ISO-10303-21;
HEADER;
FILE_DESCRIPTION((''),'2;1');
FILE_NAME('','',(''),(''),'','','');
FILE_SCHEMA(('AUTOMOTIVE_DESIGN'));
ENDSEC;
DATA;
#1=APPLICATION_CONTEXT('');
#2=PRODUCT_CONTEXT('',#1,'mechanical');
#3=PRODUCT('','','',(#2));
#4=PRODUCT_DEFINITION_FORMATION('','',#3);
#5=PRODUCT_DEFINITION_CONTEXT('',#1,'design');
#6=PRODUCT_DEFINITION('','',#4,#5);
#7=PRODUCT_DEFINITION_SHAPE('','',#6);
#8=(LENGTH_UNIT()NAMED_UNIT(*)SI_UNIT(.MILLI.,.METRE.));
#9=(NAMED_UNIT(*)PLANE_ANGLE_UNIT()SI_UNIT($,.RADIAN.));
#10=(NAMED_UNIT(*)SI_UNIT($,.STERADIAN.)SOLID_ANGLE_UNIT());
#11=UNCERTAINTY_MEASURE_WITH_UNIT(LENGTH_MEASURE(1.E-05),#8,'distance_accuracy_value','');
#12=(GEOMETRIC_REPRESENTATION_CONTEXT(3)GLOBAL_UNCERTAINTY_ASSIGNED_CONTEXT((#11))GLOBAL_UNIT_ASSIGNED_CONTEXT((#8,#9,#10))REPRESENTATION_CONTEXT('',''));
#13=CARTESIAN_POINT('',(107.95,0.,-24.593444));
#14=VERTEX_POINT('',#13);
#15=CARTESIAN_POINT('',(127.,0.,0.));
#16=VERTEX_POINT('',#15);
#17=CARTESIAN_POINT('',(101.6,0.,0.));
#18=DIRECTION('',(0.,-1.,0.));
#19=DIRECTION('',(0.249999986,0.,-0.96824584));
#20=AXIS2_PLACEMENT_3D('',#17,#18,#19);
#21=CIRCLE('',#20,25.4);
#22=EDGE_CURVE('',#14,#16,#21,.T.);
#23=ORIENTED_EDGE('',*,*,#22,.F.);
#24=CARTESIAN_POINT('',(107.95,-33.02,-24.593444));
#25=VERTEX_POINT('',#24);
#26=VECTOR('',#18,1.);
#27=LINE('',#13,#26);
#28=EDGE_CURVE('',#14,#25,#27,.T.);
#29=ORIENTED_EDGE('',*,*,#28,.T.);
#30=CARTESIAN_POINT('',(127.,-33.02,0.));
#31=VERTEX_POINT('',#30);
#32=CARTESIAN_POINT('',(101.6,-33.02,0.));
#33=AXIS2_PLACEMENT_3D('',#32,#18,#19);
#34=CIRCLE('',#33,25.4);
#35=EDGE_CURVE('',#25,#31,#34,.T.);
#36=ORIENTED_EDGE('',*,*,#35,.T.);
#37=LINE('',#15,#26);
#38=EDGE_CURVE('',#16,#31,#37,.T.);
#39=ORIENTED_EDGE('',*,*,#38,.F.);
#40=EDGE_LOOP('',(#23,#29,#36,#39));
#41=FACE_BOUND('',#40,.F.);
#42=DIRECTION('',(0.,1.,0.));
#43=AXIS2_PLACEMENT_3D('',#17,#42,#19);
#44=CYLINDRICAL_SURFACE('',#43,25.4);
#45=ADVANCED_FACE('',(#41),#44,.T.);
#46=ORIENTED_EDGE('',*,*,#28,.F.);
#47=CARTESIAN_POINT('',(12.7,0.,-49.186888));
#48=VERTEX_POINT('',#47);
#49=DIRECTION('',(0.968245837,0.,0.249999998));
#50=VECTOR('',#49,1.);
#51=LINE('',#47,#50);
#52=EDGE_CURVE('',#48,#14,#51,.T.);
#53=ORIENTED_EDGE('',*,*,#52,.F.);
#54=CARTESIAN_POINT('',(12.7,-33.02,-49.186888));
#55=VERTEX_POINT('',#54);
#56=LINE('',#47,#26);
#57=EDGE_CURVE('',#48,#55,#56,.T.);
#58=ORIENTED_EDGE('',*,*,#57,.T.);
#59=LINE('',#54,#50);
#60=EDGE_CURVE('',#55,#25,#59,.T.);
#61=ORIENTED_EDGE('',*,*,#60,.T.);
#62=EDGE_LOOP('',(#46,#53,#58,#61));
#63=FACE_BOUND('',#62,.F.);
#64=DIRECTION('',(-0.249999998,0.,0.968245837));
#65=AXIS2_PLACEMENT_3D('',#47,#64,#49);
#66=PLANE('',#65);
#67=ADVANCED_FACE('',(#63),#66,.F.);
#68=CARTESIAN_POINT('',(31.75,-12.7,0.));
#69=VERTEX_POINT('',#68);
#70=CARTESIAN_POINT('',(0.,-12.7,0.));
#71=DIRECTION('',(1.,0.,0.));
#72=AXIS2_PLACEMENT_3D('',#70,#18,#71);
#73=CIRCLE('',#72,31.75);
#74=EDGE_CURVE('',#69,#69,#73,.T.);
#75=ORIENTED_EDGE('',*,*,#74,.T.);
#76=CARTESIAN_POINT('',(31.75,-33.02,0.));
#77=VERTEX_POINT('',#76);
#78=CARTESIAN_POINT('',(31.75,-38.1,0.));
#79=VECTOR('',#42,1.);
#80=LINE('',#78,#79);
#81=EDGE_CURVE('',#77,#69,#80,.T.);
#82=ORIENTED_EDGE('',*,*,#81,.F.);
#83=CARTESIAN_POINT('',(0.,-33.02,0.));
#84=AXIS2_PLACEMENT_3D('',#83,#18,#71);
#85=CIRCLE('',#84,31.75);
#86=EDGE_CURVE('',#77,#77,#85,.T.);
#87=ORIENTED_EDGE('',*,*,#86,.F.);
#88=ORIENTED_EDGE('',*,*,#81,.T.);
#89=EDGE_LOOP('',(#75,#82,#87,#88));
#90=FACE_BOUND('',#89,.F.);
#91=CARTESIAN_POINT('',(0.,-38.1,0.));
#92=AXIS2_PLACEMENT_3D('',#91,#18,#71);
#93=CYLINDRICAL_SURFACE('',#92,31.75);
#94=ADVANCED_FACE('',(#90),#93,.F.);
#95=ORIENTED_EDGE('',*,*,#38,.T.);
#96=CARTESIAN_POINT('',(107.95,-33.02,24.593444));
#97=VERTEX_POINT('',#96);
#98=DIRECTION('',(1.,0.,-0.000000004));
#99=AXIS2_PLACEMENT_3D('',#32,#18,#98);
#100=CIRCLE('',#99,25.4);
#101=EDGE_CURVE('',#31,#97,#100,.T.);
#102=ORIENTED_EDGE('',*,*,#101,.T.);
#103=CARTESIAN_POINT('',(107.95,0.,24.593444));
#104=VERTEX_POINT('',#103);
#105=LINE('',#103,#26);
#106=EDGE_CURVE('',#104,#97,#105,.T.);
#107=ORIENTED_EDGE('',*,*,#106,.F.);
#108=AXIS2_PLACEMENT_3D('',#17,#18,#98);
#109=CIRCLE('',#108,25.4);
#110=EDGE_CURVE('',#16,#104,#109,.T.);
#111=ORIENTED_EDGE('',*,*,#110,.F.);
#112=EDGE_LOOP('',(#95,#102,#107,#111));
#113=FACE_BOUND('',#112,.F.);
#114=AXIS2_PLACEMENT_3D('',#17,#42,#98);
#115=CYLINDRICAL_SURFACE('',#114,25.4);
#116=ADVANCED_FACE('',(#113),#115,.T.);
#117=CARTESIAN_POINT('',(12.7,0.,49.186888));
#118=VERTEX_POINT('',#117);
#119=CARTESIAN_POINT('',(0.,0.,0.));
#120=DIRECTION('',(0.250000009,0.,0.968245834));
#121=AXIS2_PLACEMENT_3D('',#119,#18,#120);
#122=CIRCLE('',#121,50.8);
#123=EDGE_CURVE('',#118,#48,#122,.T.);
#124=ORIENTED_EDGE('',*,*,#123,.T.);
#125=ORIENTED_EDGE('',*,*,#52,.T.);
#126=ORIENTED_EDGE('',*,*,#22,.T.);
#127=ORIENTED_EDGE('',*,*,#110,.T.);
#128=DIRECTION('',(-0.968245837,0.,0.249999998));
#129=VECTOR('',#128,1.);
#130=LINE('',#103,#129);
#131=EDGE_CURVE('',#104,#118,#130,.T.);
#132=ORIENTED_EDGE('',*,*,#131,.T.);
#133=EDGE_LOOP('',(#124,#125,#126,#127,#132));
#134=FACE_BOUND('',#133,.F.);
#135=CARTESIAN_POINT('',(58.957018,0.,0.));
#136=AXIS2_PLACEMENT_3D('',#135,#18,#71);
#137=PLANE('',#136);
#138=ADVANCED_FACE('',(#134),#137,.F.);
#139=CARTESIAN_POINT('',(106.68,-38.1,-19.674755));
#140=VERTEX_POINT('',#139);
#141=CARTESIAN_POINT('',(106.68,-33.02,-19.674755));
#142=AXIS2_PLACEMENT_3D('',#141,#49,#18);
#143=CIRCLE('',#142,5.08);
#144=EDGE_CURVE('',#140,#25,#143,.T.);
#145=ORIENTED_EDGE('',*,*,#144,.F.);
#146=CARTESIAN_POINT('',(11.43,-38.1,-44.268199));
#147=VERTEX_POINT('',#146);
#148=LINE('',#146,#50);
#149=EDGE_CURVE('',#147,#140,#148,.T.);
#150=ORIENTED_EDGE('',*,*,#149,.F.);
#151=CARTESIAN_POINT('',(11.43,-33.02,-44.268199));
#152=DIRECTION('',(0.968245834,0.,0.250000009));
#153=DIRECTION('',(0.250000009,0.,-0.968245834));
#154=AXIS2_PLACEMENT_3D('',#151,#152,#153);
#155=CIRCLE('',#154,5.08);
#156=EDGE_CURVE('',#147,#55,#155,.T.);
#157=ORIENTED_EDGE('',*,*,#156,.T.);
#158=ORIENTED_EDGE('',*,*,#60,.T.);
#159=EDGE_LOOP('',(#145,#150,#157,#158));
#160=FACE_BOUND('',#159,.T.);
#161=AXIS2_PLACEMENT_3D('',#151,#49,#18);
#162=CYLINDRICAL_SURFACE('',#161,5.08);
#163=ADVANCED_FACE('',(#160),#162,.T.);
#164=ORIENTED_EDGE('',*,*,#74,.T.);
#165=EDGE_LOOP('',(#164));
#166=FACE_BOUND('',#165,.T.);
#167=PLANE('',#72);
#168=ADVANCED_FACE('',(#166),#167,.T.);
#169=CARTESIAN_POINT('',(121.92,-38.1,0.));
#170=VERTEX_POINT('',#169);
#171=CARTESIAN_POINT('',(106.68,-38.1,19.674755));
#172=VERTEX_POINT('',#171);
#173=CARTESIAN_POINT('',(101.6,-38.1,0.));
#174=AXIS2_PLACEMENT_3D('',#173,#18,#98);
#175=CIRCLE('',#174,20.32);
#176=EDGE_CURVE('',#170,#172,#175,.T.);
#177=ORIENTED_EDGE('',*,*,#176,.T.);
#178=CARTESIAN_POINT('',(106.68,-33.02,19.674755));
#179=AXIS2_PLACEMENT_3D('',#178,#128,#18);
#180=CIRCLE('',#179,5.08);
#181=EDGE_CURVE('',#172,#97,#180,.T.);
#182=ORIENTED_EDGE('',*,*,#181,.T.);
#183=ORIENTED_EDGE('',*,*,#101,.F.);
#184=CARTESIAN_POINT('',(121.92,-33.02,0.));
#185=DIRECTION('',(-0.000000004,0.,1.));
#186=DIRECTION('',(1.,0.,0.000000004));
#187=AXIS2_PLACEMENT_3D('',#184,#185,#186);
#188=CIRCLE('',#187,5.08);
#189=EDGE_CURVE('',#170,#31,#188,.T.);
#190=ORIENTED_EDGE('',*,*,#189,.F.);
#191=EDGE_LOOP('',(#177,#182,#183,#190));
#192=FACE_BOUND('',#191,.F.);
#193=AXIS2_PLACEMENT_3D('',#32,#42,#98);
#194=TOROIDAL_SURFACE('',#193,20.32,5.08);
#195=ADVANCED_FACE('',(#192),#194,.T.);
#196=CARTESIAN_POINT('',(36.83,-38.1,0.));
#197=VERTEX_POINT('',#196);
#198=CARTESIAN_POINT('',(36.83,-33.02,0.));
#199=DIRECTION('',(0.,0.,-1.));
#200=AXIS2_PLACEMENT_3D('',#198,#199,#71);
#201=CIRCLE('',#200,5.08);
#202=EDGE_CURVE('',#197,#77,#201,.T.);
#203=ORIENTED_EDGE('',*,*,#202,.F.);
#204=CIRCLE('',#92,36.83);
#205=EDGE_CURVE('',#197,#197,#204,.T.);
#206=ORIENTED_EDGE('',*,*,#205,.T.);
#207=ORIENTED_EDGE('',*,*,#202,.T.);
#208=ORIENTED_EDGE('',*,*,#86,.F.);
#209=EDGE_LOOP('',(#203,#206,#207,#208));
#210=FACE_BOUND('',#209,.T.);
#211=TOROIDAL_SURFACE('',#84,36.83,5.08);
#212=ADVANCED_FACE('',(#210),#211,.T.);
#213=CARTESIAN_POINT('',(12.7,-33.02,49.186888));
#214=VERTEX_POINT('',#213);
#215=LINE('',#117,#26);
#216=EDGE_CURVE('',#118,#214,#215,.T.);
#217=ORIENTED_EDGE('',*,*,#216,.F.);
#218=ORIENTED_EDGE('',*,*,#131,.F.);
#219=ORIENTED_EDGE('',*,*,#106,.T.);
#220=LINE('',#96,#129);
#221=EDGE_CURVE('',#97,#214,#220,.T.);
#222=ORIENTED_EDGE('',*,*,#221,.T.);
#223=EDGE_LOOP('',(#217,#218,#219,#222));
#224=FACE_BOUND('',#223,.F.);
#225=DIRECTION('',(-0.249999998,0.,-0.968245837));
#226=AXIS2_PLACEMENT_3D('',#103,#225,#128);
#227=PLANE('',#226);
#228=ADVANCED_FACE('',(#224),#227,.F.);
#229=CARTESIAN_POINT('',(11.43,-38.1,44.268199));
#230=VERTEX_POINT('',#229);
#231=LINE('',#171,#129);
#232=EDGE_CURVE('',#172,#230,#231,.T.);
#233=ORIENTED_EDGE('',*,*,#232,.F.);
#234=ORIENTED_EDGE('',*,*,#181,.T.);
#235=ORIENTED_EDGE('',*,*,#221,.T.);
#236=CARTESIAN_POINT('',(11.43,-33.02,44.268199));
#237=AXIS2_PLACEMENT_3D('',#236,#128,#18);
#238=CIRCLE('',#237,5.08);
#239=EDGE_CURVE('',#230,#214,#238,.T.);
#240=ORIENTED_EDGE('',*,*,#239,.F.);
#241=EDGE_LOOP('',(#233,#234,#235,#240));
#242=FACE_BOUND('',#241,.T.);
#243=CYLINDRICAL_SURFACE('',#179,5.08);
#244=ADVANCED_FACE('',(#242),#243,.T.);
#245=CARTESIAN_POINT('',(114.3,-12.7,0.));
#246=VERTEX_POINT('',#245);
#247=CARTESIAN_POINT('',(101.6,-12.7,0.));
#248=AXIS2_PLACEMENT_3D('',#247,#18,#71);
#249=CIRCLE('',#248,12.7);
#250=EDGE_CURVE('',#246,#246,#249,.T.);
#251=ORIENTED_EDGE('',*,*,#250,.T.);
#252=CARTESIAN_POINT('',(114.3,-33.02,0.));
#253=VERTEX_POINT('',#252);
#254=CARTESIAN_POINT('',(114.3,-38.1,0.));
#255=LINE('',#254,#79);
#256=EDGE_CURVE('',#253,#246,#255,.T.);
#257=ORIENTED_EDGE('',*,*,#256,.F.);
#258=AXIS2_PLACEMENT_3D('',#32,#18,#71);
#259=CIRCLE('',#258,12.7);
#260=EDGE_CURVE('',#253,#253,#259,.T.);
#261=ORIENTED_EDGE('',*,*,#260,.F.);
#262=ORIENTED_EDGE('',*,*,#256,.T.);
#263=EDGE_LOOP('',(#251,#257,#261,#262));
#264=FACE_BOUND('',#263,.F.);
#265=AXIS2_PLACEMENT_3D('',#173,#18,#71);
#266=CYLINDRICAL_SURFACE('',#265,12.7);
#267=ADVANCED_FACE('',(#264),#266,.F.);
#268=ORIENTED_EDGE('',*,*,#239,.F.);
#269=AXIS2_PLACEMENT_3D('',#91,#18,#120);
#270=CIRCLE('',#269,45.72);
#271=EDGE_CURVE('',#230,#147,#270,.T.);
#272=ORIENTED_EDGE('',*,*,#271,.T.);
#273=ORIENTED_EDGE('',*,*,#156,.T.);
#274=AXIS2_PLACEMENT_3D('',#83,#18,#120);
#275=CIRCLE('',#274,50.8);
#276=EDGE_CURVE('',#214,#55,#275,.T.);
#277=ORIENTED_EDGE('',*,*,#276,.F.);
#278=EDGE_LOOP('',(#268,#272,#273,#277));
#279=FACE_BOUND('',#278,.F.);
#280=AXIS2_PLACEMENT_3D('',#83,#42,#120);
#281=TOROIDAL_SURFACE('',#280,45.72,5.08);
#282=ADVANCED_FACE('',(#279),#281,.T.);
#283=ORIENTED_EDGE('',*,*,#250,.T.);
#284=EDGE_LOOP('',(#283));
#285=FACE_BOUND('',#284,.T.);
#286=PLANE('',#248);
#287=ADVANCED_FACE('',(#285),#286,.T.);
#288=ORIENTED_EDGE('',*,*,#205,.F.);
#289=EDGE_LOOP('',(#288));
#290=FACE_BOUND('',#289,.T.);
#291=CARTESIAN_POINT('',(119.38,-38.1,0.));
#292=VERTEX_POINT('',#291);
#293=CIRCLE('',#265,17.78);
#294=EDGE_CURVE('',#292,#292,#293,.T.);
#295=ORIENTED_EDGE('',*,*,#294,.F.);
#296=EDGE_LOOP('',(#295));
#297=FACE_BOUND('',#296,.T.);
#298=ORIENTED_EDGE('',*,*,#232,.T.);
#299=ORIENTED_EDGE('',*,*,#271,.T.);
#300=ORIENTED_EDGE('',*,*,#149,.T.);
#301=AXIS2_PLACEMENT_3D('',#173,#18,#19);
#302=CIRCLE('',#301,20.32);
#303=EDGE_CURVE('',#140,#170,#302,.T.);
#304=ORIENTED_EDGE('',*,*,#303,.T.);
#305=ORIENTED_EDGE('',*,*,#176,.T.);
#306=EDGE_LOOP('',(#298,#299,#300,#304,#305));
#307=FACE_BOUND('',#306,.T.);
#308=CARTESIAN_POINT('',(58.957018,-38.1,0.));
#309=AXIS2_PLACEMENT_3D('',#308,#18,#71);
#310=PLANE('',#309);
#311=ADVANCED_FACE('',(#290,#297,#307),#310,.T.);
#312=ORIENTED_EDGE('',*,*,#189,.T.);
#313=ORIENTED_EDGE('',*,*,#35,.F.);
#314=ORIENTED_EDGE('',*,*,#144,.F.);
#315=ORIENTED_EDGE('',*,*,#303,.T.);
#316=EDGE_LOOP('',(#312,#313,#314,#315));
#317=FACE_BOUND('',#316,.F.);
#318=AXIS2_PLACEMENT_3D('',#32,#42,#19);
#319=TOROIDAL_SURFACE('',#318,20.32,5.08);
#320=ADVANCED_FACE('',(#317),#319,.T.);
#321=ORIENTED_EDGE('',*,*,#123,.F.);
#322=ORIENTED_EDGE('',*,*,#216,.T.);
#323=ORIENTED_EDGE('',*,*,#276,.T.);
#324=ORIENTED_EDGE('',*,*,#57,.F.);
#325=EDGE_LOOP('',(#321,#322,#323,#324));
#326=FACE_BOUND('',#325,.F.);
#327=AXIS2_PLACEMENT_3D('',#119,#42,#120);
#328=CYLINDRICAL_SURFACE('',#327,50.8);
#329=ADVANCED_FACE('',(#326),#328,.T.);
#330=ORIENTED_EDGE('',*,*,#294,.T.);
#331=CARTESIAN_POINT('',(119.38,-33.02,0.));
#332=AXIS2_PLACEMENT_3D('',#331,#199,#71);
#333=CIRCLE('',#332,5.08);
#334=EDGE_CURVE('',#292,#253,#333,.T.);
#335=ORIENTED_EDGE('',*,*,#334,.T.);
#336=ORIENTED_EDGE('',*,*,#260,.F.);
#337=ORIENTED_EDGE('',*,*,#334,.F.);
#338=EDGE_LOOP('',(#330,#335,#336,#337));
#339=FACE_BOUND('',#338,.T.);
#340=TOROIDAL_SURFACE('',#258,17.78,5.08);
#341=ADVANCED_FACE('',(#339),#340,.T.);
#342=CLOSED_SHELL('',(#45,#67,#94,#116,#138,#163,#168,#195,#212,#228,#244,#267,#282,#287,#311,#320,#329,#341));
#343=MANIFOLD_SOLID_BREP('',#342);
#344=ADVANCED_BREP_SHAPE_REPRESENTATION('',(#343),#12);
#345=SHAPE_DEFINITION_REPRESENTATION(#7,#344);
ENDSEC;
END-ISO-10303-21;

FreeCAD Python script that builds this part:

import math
import FreeCAD as App
import Part
import Sketcher
from FreeCAD import Vector
Q = App.Units.Quantity


def edges_at(feature, points):
    """Names of the edges that pass closest to the given points."""
    edges = feature.Shape.Edges
    near = lambda p: min(range(len(edges)), key=lambda i: edges[i].distToShape(Part.Vertex(*p))[0])
    return sorted({f"Edge{near(p) + 1}" for p in points})

doc = App.newDocument("Part")
params = doc.addObject("Spreadsheet::Sheet", "Params")
for row, (alias, value) in enumerate([
    ("sketch1_radius", "1 in"),
    ("sketch1_radius2", "2 in"),
    ("pad1_length", "1.5 in"),
    ("sketch2_diameter", "1 in"),
    ("sketch2_diameter2", "2.5 in"),
    ("pocket1_length", "1 in"),
    ("fillet_radius", "0.2 in"),
], start=1):
    params.set(f"A{row}", alias)
    params.set(f"B{row}", "=" + value)
    params.setAlias(f"B{row}", alias)

body = doc.addObject("PartDesign::Body", "Body")

sketch1 = body.newObject("Sketcher::SketchObject", "Sketch")
sketch1.AttachmentSupport = (doc.getObject("XZ_Plane"), [""])
sketch1.MapMode = "FlatFace"
sketch1.addGeometry(Part.LineSegment(Vector(13, -49, 0), Vector(108, -25, 0)), False)
sketch1.addGeometry(Part.ArcOfCircle(Part.Circle(Vector(102, 0, 0), Vector(0, 0, 1), 25), math.radians(-76), math.radians(0)), False)
sketch1.addGeometry(Part.ArcOfCircle(Part.Circle(Vector(102, 0, 0), Vector(0, 0, 1), 25), math.radians(0), math.radians(76)), False)
sketch1.addGeometry(Part.LineSegment(Vector(108, 25, 0), Vector(13, 49, 0)), False)
sketch1.addGeometry(Part.ArcOfCircle(Part.Circle(Vector(0, 0, 0), Vector(0, 0, 1), 51), math.radians(76), math.radians(284)), False)
sketch1.addConstraint(Sketcher.Constraint("Tangent", 0, 2, 1, 1))
sketch1.addConstraint(Sketcher.Constraint("Tangent", 1, 2, 2, 1))
sketch1.addConstraint(Sketcher.Constraint("Tangent", 2, 2, 3, 1))
sketch1.addConstraint(Sketcher.Constraint("Tangent", 3, 2, 4, 1))
sketch1.addConstraint(Sketcher.Constraint("Tangent", 4, 2, 0, 1))
sketch1.addConstraint(Sketcher.Constraint("Coincident", 4, 3, -1, 1))
sketch1.addConstraint(Sketcher.Constraint("Equal", 1, 2))
sketch1.addConstraint(Sketcher.Constraint("PointOnObject", 1, 3, -1))
sketch1.addConstraint(Sketcher.Constraint("PointOnObject", 1, 2, -1))
sketch1.addConstraint(Sketcher.Constraint("Radius", 1, Q("1 in")))
sketch1.addConstraint(Sketcher.Constraint("Radius", 4, Q("2 in")))
sketch1.addConstraint(Sketcher.Constraint("DistanceX", -1, 1, 1, 3, Q("4 in")))
sketch1.setExpression("Constraints[9]", "Params.sketch1_radius")
sketch1.setExpression("Constraints[10]", "Params.sketch1_radius2")
pad1 = body.newObject("PartDesign::Pad", "Pad")
pad1.Profile = sketch1
pad1.setExpression("Length", "Params.pad1_length")

sketch2 = body.newObject("Sketcher::SketchObject", "Sketch001")
sketch2.AttachmentSupport = (doc.getObject("XZ_Plane"), [""])
sketch2.MapMode = "FlatFace"
sketch2.AttachmentOffset = App.Placement(Vector(0, 0, 1.5 * 25.4), App.Rotation())
sketch2.addGeometry(Part.Circle(Vector(0, 0, 0), Vector(0, 0, 1), 32), False)
sketch2.addGeometry(Part.Circle(Vector(102, 0, 0), Vector(0, 0, 1), 13), False)
sketch2.addConstraint(Sketcher.Constraint("Coincident", 0, 3, -1, 1))
sketch2.addConstraint(Sketcher.Constraint("PointOnObject", 1, 3, -1))
sketch2.addConstraint(Sketcher.Constraint("Diameter", 1, Q("1 in")))
sketch2.addConstraint(Sketcher.Constraint("Diameter", 0, Q("2.5 in")))
sketch2.addConstraint(Sketcher.Constraint("DistanceX", -1, 1, 1, 3, Q("4 in")))
sketch2.setExpression("Constraints[2]", "Params.sketch2_diameter")
sketch2.setExpression("Constraints[3]", "Params.sketch2_diameter2")
pocket1 = body.newObject("PartDesign::Pocket", "Pocket")
pocket1.Profile = sketch2
pocket1.setExpression("Length", "Params.pocket1_length")
doc.recompute()

fillet = body.newObject("PartDesign::Fillet", "Fillet")
fillet.Base = (pocket1, edges_at(pocket1, [(-31.75, -38.1, 0), (88.9, -38.1, 0), (60.325, -38.1, 36.89)]))
fillet.setExpression("Radius", "Params.fillet_radius")

doc.recompute()
